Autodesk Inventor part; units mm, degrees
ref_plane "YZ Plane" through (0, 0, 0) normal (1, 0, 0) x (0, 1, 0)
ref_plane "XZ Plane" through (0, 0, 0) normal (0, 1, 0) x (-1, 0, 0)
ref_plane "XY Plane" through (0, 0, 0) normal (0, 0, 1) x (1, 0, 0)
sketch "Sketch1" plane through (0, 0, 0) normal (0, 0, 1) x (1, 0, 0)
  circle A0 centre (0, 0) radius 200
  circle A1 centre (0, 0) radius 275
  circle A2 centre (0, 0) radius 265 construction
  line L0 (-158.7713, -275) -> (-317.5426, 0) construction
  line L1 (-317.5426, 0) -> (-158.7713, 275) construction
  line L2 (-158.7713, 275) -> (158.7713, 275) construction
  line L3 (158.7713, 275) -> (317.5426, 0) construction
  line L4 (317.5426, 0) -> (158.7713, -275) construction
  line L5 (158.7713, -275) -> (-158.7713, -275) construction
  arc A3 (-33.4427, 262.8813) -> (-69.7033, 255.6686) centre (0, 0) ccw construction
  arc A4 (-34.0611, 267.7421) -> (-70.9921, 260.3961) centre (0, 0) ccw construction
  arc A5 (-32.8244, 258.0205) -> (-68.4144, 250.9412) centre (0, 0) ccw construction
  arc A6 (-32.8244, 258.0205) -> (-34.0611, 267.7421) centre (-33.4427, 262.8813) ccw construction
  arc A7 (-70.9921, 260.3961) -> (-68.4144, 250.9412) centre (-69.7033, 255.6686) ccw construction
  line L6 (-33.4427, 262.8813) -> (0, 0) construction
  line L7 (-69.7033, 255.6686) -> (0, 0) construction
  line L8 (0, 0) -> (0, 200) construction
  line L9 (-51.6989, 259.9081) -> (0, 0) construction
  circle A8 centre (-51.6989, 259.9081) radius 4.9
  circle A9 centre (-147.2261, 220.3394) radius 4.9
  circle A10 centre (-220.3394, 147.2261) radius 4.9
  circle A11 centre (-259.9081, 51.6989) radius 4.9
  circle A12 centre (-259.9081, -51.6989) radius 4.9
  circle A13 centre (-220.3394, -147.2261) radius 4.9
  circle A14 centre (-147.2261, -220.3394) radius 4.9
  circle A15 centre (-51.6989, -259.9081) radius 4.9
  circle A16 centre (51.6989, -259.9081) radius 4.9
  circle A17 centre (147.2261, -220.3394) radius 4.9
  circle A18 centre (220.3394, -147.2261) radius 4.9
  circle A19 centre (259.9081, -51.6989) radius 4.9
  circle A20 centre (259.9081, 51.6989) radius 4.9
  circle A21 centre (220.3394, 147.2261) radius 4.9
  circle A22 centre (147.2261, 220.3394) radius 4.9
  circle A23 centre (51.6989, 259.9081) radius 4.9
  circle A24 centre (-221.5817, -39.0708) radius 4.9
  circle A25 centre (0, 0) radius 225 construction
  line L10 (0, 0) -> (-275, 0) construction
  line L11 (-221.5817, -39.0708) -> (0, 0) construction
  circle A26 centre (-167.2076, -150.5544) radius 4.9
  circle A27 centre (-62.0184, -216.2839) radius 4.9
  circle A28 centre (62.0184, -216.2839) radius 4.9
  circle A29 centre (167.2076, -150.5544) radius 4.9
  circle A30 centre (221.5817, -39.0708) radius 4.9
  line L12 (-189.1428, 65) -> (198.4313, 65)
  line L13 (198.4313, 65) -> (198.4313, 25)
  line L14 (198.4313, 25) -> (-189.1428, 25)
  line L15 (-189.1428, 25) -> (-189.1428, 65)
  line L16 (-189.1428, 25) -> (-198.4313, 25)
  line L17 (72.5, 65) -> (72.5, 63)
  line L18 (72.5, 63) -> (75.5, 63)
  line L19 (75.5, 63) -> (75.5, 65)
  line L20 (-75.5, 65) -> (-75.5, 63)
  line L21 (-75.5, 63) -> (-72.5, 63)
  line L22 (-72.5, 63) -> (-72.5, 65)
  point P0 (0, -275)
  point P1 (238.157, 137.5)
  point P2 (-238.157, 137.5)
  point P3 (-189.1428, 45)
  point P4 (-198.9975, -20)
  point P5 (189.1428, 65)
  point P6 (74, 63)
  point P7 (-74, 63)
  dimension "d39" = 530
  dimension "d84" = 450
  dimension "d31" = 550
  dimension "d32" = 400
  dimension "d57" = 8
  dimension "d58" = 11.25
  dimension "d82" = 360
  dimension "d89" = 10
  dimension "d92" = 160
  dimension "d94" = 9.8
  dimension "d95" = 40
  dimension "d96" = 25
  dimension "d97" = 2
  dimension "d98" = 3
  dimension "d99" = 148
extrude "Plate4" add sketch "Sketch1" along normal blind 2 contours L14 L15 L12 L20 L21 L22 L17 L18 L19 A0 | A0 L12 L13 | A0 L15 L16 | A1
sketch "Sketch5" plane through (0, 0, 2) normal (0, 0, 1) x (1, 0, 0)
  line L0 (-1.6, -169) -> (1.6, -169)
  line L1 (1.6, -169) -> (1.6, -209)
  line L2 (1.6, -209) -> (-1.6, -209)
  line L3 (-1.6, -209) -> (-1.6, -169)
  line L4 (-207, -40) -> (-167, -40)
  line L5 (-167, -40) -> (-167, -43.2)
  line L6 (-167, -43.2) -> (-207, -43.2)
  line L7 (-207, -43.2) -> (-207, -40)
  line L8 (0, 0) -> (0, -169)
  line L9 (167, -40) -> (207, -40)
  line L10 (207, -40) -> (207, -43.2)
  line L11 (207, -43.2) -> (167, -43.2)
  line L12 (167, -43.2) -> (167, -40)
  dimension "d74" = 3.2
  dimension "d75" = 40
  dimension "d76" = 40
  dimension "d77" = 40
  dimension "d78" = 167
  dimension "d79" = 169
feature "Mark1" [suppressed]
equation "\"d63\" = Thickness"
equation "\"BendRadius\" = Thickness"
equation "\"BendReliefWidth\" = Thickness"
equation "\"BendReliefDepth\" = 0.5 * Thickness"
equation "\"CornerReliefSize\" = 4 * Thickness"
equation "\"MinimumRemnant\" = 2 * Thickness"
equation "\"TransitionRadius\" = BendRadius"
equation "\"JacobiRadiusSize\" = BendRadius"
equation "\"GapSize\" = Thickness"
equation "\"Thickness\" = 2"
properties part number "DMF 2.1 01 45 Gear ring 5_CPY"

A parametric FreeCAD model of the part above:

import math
import FreeCAD as App
import Part
import Sketcher
from FreeCAD import Vector

doc = App.newDocument("Part")
body = doc.addObject("PartDesign::Body", "Body")

# Sketch on XY plane
sketch1 = doc.addObject("Sketcher::SketchObject", "Sketch")
body.addObject(sketch1)
sketch1.AttachmentSupport = (doc.XY_Plane, [""])
sketch1.MapMode = "FlatFace"
sketch1.addGeometry([
    Part.Circle(Vector(0, 0, 0), Vector(0, 0, 1), 275),  # 0
    Part.ArcOfCircle(Part.Circle(Vector(0, 0, 0), Vector(0, 0, 1), 200), math.radians(173), math.radians(367)),  # 1
    Part.LineSegment(Vector(198.4, 25, 0), Vector(-198.4, 25, 0)),  # 2
    Part.LineSegment(Vector(-75.5, 65, 0), Vector(-189.1, 65, 0)),  # 3
    Part.ArcOfCircle(Part.Circle(Vector(0, 0, 0), Vector(0, 0, 1), 200), math.radians(19), math.radians(161)),  # 4
    Part.LineSegment(Vector(189.1, 65, 0), Vector(75.5, 65, 0)),  # 5
    Part.LineSegment(Vector(75.5, 65, 0), Vector(75.5, 63, 0)),  # 6
    Part.LineSegment(Vector(75.5, 63, 0), Vector(72.5, 63, 0)),  # 7
    Part.LineSegment(Vector(72.5, 63, 0), Vector(72.5, 65, 0)),  # 8
    Part.LineSegment(Vector(72.5, 65, 0), Vector(-72.5, 65, 0)),  # 9
    Part.LineSegment(Vector(-72.5, 65, 0), Vector(-72.5, 63, 0)),  # 10
    Part.LineSegment(Vector(-72.5, 63, 0), Vector(-75.5, 63, 0)),  # 11
    Part.LineSegment(Vector(-75.5, 63, 0), Vector(-75.5, 65, 0)),  # 12
    Part.Circle(Vector(-147.2, -220.3, 0), Vector(0, 0, 1), 4.9),  # 13
    Part.Circle(Vector(-220.3, -147.2, 0), Vector(0, 0, 1), 4.9),  # 14
    Part.Circle(Vector(-167.2, -150.6, 0), Vector(0, 0, 1), 4.9),  # 15
    Part.Circle(Vector(-51.7, -259.9, 0), Vector(0, 0, 1), 4.9),  # 16
    Part.Circle(Vector(-62, -216.3, 0), Vector(0, 0, 1), 4.9),  # 17
    Part.Circle(Vector(-259.9, -51.7, 0), Vector(0, 0, 1), 4.9),  # 18
    Part.Circle(Vector(-221.6, -39.1, 0), Vector(0, 0, 1), 4.9),  # 19
    Part.Circle(Vector(51.7, -259.9, 0), Vector(0, 0, 1), 4.9),  # 20
    Part.Circle(Vector(62, -216.3, 0), Vector(0, 0, 1), 4.9),  # 21
    Part.Circle(Vector(147.2, -220.3, 0), Vector(0, 0, 1), 4.9),  # 22
    Part.Circle(Vector(167.2, -150.6, 0), Vector(0, 0, 1), 4.9),  # 23
    Part.Circle(Vector(220.3, -147.2, 0), Vector(0, 0, 1), 4.9),  # 24
    Part.Circle(Vector(221.6, -39.1, 0), Vector(0, 0, 1), 4.9),  # 25
    Part.Circle(Vector(259.9, -51.7, 0), Vector(0, 0, 1), 4.9),  # 26
    Part.Circle(Vector(-259.9, 51.7, 0), Vector(0, 0, 1), 4.9),  # 27
    Part.Circle(Vector(-220.3, 147.2, 0), Vector(0, 0, 1), 4.9),  # 28
    Part.Circle(Vector(-147.2, 220.3, 0), Vector(0, 0, 1), 4.9),  # 29
    Part.Circle(Vector(-51.7, 259.9, 0), Vector(0, 0, 1), 4.9),  # 30
    Part.Circle(Vector(220.3, 147.2, 0), Vector(0, 0, 1), 4.9),  # 31
    Part.Circle(Vector(51.7, 259.9, 0), Vector(0, 0, 1), 4.9),  # 32
    Part.Circle(Vector(147.2, 220.3, 0), Vector(0, 0, 1), 4.9),  # 33
    Part.Circle(Vector(259.9, 51.7, 0), Vector(0, 0, 1), 4.9),  # 34
], False)
sketch1.addConstraint([
    Sketcher.Constraint("Coincident", 1, 1, 2, 2),
    Sketcher.Constraint("Coincident", 2, 1, 1, 2),
    Sketcher.Constraint("Coincident", 3, 2, 4, 2),
    Sketcher.Constraint("Coincident", 4, 1, 5, 1),
    Sketcher.Constraint("Coincident", 5, 2, 6, 1),
    Sketcher.Constraint("Coincident", 6, 2, 7, 1),
    Sketcher.Constraint("Coincident", 7, 2, 8, 1),
    Sketcher.Constraint("Coincident", 8, 2, 9, 1),
    Sketcher.Constraint("Coincident", 9, 2, 10, 1),
    Sketcher.Constraint("Coincident", 10, 2, 11, 1),
    Sketcher.Constraint("Coincident", 11, 2, 12, 1),
    Sketcher.Constraint("Coincident", 12, 2, 3, 1),
    Sketcher.Constraint("Horizontal", 2),
    Sketcher.Constraint("Horizontal", 3),
    Sketcher.Constraint("Horizontal", 5),
    Sketcher.Constraint("Vertical", 6),
    Sketcher.Constraint("Horizontal", 7),
    Sketcher.Constraint("Vertical", 8),
    Sketcher.Constraint("Horizontal", 9),
    Sketcher.Constraint("Vertical", 10),
    Sketcher.Constraint("Horizontal", 11),
    Sketcher.Constraint("Vertical", 12),
    Sketcher.Constraint("Coincident", 0, 3, -1, 1),
    Sketcher.Constraint("Coincident", 1, 3, -1, 1),
    Sketcher.Constraint("Coincident", 4, 3, -1, 1),
    Sketcher.Constraint("Equal", 1, 4),
    Sketcher.Constraint("Equal", 13, 14),
    Sketcher.Constraint("Equal", 14, 15),
    Sketcher.Constraint("Equal", 15, 16),
    Sketcher.Constraint("Equal", 16, 17),
    Sketcher.Constraint("Equal", 17, 18),
    Sketcher.Constraint("Equal", 18, 19),
    Sketcher.Constraint("Equal", 19, 20),
    Sketcher.Constraint("Equal", 20, 21),
    Sketcher.Constraint("Equal", 21, 22),
    Sketcher.Constraint("Equal", 22, 23),
    Sketcher.Constraint("Equal", 23, 24),
    Sketcher.Constraint("Equal", 24, 25),
    Sketcher.Constraint("Equal", 25, 26),
    Sketcher.Constraint("Equal", 26, 27),
    Sketcher.Constraint("Equal", 27, 28),
    Sketcher.Constraint("Equal", 28, 29),
    Sketcher.Constraint("Equal", 29, 30),
    Sketcher.Constraint("Equal", 30, 31),
    Sketcher.Constraint("Equal", 31, 32),
    Sketcher.Constraint("Equal", 32, 33),
    Sketcher.Constraint("Equal", 33, 34),
    Sketcher.Constraint("Symmetric", 26, 3, 27, 3, -1, 1),
    Sketcher.Constraint("Symmetric", 24, 3, 28, 3, -1, 1),
    Sketcher.Constraint("Symmetric", 22, 3, 29, 3, -1, 1),
    Sketcher.Constraint("Symmetric", 20, 3, 30, 3, -1, 1),
    Sketcher.Constraint("Symmetric", 14, 3, 31, 3, -1, 1),
    Sketcher.Constraint("Symmetric", 16, 3, 32, 3, -1, 1),
    Sketcher.Constraint("Symmetric", 13, 3, 33, 3, -1, 1),
    Sketcher.Constraint("Symmetric", 18, 3, 34, 3, -1, 1),
    Sketcher.Constraint("Symmetric", 16, 3, 20, 3, -2),
    Sketcher.Constraint("Symmetric", 17, 3, 21, 3, -2),
    Sketcher.Constraint("Symmetric", 13, 3, 22, 3, -2),
    Sketcher.Constraint("Symmetric", 15, 3, 23, 3, -2),
    Sketcher.Constraint("Symmetric", 14, 3, 24, 3, -2),
    Sketcher.Constraint("Symmetric", 19, 3, 25, 3, -2),
    Sketcher.Constraint("Symmetric", 18, 3, 26, 3, -2),
    Sketcher.Constraint("Symmetric", 7, 2, 10, 2, -2),
    Sketcher.Constraint("Symmetric", 5, 2, 12, 2, -2),
    Sketcher.Constraint("Horizontal", 5, 2, 8, 2),
    Sketcher.Constraint("Diameter", 0, 550.0),
    Sketcher.Constraint("Radius", 1, 200.0),
    Sketcher.Constraint("Diameter", 13, 9.8),
    Sketcher.Constraint("DistanceX", 7, 2, 7, 1, 3.0),
    Sketcher.Constraint("DistanceY", 6, 2, 6, 1, 2.0),
    Sketcher.Constraint("DistanceY", -1, 1, 1, 1, 25.0),
    Sketcher.Constraint("DistanceY", 2, 1, 5, 2, 40.0),
    Sketcher.Constraint("DistanceX", 9, 2, 9, 1, 145.0),
    Sketcher.Constraint("DistanceX", 13, 3, -1, 1, 147.226),
    Sketcher.Constraint("DistanceY", 14, 3, -1, 1, 147.226),
    Sketcher.Constraint("DistanceX", 16, 3, -1, 1, 51.699),
    Sketcher.Constraint("DistanceY", 16, 3, -1, 1, 259.908),
    Sketcher.Constraint("DistanceY", 17, 3, -1, 1, 216.284),
    Sketcher.Constraint("DistanceX", 18, 3, -1, 1, 259.908),
    Sketcher.Constraint("DistanceY", 18, 3, -1, 1, 51.699),
    Sketcher.Constraint("DistanceY", 13, 3, 15, 3, 69.785),
    Sketcher.Constraint("DistanceX", 14, 3, 17, 3, 158.321),
    Sketcher.Constraint("DistanceY", 18, 3, 19, 3, 12.628),
    Sketcher.Constraint("DistanceX", 19, 3, 15, 3, 54.374),
    Sketcher.Constraint("DistanceX", 28, 3, 1, 1, 21.908),
    Sketcher.Constraint("DistanceX", 19, 3, 3, 2, 32.439),
    Sketcher.Constraint("DistanceY", 13, 3, -1, 1, 220.3394),
])
pad1 = doc.addObject("PartDesign::Pad", "Pad")
body.addObject(pad1)
pad1.Profile = sketch1
pad1.Length = 2

doc.recompute()
